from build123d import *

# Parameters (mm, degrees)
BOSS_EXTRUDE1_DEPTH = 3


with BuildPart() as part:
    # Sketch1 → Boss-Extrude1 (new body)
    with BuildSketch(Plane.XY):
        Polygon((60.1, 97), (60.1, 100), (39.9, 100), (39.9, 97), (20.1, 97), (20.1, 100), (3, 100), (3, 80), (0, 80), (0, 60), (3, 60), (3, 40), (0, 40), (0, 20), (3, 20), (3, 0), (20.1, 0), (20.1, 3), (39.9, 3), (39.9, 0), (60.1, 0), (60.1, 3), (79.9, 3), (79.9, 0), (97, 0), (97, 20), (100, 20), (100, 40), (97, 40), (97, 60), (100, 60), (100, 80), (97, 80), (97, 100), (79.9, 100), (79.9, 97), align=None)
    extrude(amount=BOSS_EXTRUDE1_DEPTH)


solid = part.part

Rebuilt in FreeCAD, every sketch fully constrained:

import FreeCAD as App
import Part
import Sketcher

V = App.Vector
Q = App.Units.Quantity


def add_polygon(sketch, points):
    """Adds a closed chain of lines whose ends are joined by coincident constraints."""
    first, n = sketch.GeometryCount, len(points)
    for a, b in zip(points, points[1:] + points[:1]):
        sketch.addGeometry(Part.LineSegment(App.Vector(*a, 0), App.Vector(*b, 0)), False)
    for i in range(n):
        sketch.addConstraint(Sketcher.Constraint("Coincident", first + i, 2, first + (i + 1) % n, 1))

doc = App.newDocument("Part")
body = doc.addObject("PartDesign::Body", "Body")

# Sketch on XY plane
sketch1 = body.newObject("Sketcher::SketchObject", "Sketch")
sketch1.AttachmentSupport = (doc.getObject("XY_Plane"), [""])
sketch1.MapMode = "FlatFace"
add_polygon(sketch1, [(60.1, 97), (60.1, 100), (39.9, 100), (39.9, 97), (20.1, 97), (20.1, 100), (3, 100), (3, 80), (0, 80), (0, 60), (3, 60), (3, 40), (0, 40), (0, 20), (3, 20), (3, 0), (20.1, 0), (20.1, 3), (39.9, 3), (39.9, 0), (60.1, 0), (60.1, 3), (79.9, 3), (79.9, 0), (97, 0), (97, 20), (100, 20), (100, 40), (97, 40), (97, 60), (100, 60), (100, 80), (97, 80), (97, 100), (79.9, 100), (79.9, 97)])  # lines 0-35
sketch1.addConstraint([
    Sketcher.Constraint("Vertical", 0),
    Sketcher.Constraint("Horizontal", 1),
    Sketcher.Constraint("Vertical", 2),
    Sketcher.Constraint("Horizontal", 3),
    Sketcher.Constraint("Vertical", 4),
    Sketcher.Constraint("Horizontal", 5),
    Sketcher.Constraint("Vertical", 6),
    Sketcher.Constraint("Horizontal", 7),
    Sketcher.Constraint("Vertical", 8),
    Sketcher.Constraint("Horizontal", 9),
    Sketcher.Constraint("Vertical", 10),
    Sketcher.Constraint("Horizontal", 11),
    Sketcher.Constraint("Vertical", 12),
    Sketcher.Constraint("Horizontal", 13),
    Sketcher.Constraint("Vertical", 14),
    Sketcher.Constraint("Horizontal", 15),
    Sketcher.Constraint("Vertical", 16),
    Sketcher.Constraint("Horizontal", 17),
    Sketcher.Constraint("Vertical", 18),
    Sketcher.Constraint("Horizontal", 19),
    Sketcher.Constraint("Vertical", 20),
    Sketcher.Constraint("Horizontal", 21),
    Sketcher.Constraint("Vertical", 22),
    Sketcher.Constraint("Horizontal", 23),
    Sketcher.Constraint("Vertical", 24),
    Sketcher.Constraint("Horizontal", 25),
    Sketcher.Constraint("Vertical", 26),
    Sketcher.Constraint("Horizontal", 27),
    Sketcher.Constraint("Vertical", 28),
    Sketcher.Constraint("Horizontal", 29),
    Sketcher.Constraint("Vertical", 30),
    Sketcher.Constraint("Horizontal", 31),
    Sketcher.Constraint("Vertical", 32),
    Sketcher.Constraint("Horizontal", 33),
    Sketcher.Constraint("Vertical", 34),
    Sketcher.Constraint("Horizontal", 35),
    Sketcher.Constraint("PointOnObject", 7, 2, -2),
    Sketcher.Constraint("PointOnObject", 11, 2, -2),
    Sketcher.Constraint("PointOnObject", 14, 2, -1),
    Sketcher.Constraint("PointOnObject", 18, 2, -1),
    Sketcher.Constraint("PointOnObject", 22, 2, -1),
    Sketcher.Constraint("Horizontal", 1, 2, 4, 2),
    Sketcher.Constraint("Horizontal", 17, 2, 20, 2),
    Sketcher.Constraint("Horizontal", 13, 2, 24, 2),
    Sketcher.Constraint("Horizontal", 11, 2, 26, 2),
    Sketcher.Constraint("Horizontal", 9, 2, 28, 2),
    Sketcher.Constraint("Horizontal", 7, 2, 30, 2),
    Sketcher.Constraint("Horizontal", 5, 2, 32, 2),
    Sketcher.Constraint("Horizontal", 3, 2, 34, 2),
    Sketcher.Constraint("Vertical", 6, 2, 9, 2),
    Sketcher.Constraint("Vertical", 10, 2, 13, 2),
    Sketcher.Constraint("Vertical", 4, 2, 15, 2),
    Sketcher.Constraint("Vertical", 2, 2, 17, 2),
    Sketcher.Constraint("Vertical", 0, 2, 19, 2),
    Sketcher.Constraint("Vertical", 24, 2, 27, 2),
    Sketcher.Constraint("Vertical", 26, 2, 29, 2),
    Sketcher.Constraint("Vertical", 28, 2, 31, 2),
    Sketcher.Constraint("Vertical", 22, 2, 33, 2),
    Sketcher.Constraint("Equal", 17, 21),
    Sketcher.Constraint("Equal", 15, 23),
    Sketcher.Constraint("Equal", 13, 25),
    Sketcher.Constraint("Equal", 31, 0),
    Sketcher.Constraint("Equal", 6, 8),
    Sketcher.Constraint("Equal", 8, 10),
    Sketcher.Constraint("Equal", 10, 12),
    Sketcher.Constraint("Equal", 12, 14),
    Sketcher.Constraint("Equal", 4, 16),
    Sketcher.Constraint("DistanceX", 7, 2, 7, 1, Q("3 mm")),
    Sketcher.Constraint("DistanceY", 6, 2, 6, 1, Q("20 mm")),
    Sketcher.Constraint("DistanceX", 1, 2, 1, 1, Q("20.2 mm")),
    Sketcher.Constraint("DistanceX", 3, 2, 3, 1, Q("19.8 mm")),
    Sketcher.Constraint("DistanceX", 5, 2, 5, 1, Q("17.1 mm")),
])
pad1 = body.newObject("PartDesign::Pad", "Pad")
pad1.Profile = sketch1
pad1.Length = 3

doc.recompute()
